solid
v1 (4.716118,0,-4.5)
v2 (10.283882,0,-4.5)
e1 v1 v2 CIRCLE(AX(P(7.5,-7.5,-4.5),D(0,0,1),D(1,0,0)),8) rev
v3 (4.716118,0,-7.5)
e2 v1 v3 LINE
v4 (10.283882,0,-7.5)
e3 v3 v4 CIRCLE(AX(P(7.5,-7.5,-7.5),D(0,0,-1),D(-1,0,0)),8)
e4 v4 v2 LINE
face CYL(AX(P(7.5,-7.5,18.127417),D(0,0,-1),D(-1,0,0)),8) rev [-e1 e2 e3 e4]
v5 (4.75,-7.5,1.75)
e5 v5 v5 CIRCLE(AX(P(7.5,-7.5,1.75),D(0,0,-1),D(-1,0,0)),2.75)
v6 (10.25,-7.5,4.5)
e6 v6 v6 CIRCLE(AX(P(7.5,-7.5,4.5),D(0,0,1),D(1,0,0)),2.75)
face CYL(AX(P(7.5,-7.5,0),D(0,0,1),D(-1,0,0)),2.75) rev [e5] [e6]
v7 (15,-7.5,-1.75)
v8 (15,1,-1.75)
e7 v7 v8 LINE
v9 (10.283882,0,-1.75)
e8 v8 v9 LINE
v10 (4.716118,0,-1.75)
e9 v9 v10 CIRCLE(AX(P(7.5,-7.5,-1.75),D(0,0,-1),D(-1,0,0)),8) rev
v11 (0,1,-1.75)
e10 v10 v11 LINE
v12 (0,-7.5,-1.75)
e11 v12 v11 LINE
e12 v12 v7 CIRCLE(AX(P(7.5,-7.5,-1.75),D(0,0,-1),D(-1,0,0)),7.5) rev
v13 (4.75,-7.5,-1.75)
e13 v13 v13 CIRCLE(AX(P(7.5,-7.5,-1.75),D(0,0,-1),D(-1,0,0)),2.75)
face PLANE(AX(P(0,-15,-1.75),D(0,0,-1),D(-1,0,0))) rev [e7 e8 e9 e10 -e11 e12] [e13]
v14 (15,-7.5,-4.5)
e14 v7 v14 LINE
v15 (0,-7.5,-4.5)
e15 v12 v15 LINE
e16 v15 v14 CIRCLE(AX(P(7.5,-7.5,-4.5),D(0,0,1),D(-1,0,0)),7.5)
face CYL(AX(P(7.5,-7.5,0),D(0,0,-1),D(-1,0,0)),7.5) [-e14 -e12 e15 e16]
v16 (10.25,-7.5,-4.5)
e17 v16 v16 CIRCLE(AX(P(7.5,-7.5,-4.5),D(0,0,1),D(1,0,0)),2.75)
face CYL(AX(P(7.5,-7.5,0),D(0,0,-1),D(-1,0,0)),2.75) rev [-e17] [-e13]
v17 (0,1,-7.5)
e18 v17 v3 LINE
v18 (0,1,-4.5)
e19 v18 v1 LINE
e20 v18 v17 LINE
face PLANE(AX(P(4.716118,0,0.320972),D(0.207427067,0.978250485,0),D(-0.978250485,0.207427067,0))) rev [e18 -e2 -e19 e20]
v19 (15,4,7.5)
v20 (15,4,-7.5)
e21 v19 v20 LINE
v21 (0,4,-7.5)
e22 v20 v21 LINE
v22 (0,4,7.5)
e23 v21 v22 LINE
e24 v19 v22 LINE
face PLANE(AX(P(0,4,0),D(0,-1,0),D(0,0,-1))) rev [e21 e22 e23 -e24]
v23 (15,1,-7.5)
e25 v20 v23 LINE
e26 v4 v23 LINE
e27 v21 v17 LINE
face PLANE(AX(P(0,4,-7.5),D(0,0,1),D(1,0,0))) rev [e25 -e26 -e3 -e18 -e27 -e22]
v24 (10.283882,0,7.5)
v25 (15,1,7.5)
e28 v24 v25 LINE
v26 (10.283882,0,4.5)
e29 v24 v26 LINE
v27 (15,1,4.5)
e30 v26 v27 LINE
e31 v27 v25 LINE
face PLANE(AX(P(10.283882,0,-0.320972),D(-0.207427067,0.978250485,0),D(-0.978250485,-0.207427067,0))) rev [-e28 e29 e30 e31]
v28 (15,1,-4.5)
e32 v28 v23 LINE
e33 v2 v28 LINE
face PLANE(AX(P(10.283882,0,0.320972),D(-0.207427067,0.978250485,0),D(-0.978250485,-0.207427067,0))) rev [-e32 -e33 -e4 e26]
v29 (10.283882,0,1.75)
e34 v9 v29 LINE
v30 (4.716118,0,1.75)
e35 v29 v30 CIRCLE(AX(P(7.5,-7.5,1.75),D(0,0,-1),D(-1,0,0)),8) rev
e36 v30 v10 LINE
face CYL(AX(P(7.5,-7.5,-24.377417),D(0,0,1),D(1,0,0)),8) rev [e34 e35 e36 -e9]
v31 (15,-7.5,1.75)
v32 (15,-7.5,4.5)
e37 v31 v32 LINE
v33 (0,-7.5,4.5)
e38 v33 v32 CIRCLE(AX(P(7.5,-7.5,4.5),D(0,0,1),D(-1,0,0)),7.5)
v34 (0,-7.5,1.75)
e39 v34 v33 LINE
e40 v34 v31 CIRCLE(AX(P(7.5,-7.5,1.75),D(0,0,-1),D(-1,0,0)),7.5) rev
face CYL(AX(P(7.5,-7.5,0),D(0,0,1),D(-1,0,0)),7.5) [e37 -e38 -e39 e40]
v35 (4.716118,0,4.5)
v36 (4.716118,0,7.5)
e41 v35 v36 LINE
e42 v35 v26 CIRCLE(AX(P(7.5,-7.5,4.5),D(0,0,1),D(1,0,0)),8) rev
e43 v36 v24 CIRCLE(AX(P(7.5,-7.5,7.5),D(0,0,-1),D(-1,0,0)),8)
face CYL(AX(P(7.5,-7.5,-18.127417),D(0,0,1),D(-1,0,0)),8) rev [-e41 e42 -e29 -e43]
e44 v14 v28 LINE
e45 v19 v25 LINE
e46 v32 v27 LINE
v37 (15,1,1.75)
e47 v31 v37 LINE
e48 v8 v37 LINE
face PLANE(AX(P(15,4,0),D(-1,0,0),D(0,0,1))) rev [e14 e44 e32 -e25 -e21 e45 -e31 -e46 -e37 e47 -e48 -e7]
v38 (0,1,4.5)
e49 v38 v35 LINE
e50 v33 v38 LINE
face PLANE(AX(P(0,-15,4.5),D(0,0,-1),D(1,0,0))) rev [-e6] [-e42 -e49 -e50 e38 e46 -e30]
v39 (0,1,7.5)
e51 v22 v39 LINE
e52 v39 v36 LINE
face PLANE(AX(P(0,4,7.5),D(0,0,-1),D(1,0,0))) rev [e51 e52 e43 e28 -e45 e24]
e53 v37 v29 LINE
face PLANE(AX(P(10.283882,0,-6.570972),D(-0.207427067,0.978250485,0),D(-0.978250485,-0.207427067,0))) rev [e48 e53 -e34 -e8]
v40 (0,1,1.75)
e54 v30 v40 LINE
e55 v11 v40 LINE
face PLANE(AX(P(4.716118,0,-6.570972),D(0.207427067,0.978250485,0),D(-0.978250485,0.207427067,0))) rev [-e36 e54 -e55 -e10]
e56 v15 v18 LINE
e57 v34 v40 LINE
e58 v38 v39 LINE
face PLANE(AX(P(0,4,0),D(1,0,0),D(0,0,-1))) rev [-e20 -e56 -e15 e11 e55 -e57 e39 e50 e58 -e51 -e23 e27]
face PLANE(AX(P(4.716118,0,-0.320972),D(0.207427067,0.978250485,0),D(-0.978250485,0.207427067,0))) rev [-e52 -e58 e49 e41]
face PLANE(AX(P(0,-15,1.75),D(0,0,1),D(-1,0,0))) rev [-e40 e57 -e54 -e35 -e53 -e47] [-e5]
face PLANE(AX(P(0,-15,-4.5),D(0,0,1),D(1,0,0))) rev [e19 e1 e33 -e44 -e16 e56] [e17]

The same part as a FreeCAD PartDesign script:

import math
import FreeCAD as App
import Part
import Sketcher


def add_polygon(sketch, points):
    """Adds a closed chain of lines whose ends are joined by coincident constraints."""
    first, n = sketch.GeometryCount, len(points)
    for a, b in zip(points, points[1:] + points[:1]):
        sketch.addGeometry(Part.LineSegment(App.Vector(*a, 0), App.Vector(*b, 0)), False)
    for i in range(n):
        sketch.addConstraint(Sketcher.Constraint("Coincident", first + i, 2, first + (i + 1) % n, 1))

doc = App.newDocument("Part")
body = doc.addObject("PartDesign::Body", "Body")

# Sketch on XZ plane
sketch1 = body.newObject("Sketcher::SketchObject", "Sketch")
sketch1.AttachmentSupport = (doc.getObject("XZ_Plane"), [""])
sketch1.MapMode = "FlatFace"
add_polygon(sketch1, [(0, -8), (0, 0), (15, 0), (15, -8)])  # lines 0-3
sketch1.addConstraint([
    Sketcher.Constraint("Vertical", 0),
    Sketcher.Constraint("Horizontal", 1),
    Sketcher.Constraint("Vertical", 2),
    Sketcher.Constraint("Horizontal", 3),
    Sketcher.Constraint("Coincident", 0, 2, -1, 1),
    Sketcher.Constraint("DistanceX", 1, 1, 1, 2, 15.0),
    Sketcher.Constraint("DistanceY", 0, 1, 0, 2, 7.5),
])
pad1 = body.newObject("PartDesign::Pad", "Pad")
pad1.Profile = sketch1
pad1.Length = 4
pad1.Reversed = True

# Sketch on XZ plane
sketch2 = body.newObject("Sketcher::SketchObject", "Sketch001")
sketch2.AttachmentSupport = (doc.getObject("XZ_Plane"), [""])
sketch2.MapMode = "FlatFace"
add_polygon(sketch2, [(0, -1.8), (0, -4.5), (15, -4.5), (15, -1.8)])  # lines 0-3
sketch2.addConstraint([
    Sketcher.Constraint("Vertical", 0),
    Sketcher.Constraint("Horizontal", 1),
    Sketcher.Constraint("Vertical", 2),
    Sketcher.Constraint("Horizontal", 3),
    Sketcher.Constraint("PointOnObject", 0, 2, -2),
    Sketcher.Constraint("DistanceX", 1, 1, 1, 2, 15.0),
    Sketcher.Constraint("DistanceY", 0, 2, 0, 1, 2.75),
    Sketcher.Constraint("DistanceY", 0, 2, -1, 1, 4.5),
])
pad2 = body.newObject("PartDesign::Pad", "Pad001")
pad2.Profile = sketch2
pad2.Length = 15

# Sketch on XY plane
sketch3 = body.newObject("Sketcher::SketchObject", "Sketch002")
sketch3.AttachmentSupport = (doc.getObject("XY_Plane"), [""])
sketch3.MapMode = "FlatFace"
sketch3.AttachmentOffset = App.Placement(App.Vector(0, 0, -4.5), App.Rotation())
sketch3.addGeometry([
    Part.LineSegment(App.Vector(15, -8, 0), App.Vector(15, -17, 0)),
    Part.LineSegment(App.Vector(15, -17, 0), App.Vector(0, -17, 0)),
    Part.LineSegment(App.Vector(0, -17, 0), App.Vector(0, -8, 0)),
    Part.ArcOfCircle(Part.Circle(App.Vector(8, -8, 0), App.Vector(0, 0, 1), 8), math.radians(180), math.radians(360)),
], False)
sketch3.addConstraint([
    Sketcher.Constraint("Coincident", 0, 2, 1, 1),
    Sketcher.Constraint("Coincident", 1, 2, 2, 1),
    Sketcher.Constraint("Tangent", 2, 2, 3, 1),
    Sketcher.Constraint("Tangent", 3, 2, 0, 1),
    Sketcher.Constraint("Vertical", 0),
    Sketcher.Constraint("Horizontal", 1),
    Sketcher.Constraint("Vertical", 2),
    Sketcher.Constraint("PointOnObject", 1, 2, -2),
    Sketcher.Constraint("Radius", 3, 7.5),
    Sketcher.Constraint("DistanceY", 3, 3, -1, 1, 7.5),
    Sketcher.Constraint("DistanceY", 0, 2, 0, 1, 9.841995),
])
pocket1 = body.newObject("PartDesign::Pocket", "Pocket")
pocket1.Profile = sketch3
pocket1.Type = "ThroughAll"
pocket1.Reversed = True

# Sketch on XY plane
sketch4 = body.newObject("Sketcher::SketchObject", "Sketch003")
sketch4.AttachmentSupport = (doc.getObject("XY_Plane"), [""])
sketch4.MapMode = "FlatFace"
sketch4.AttachmentOffset = App.Placement(App.Vector(0, 0, -7.5), App.Rotation())
sketch4.addGeometry(Part.Circle(App.Vector(7.5, -7.5, 0), App.Vector(0, 0, 1), 2.8), False)
sketch4.addConstraint([
    Sketcher.Constraint("Diameter", 0, 5.5),
    Sketcher.Constraint("DistanceX", -1, 1, 0, 3, 7.5),
    Sketcher.Constraint("DistanceY", 0, 3, -1, 1, 7.5),
])
pocket2 = body.newObject("PartDesign::Pocket", "Pocket001")
pocket2.Profile = sketch4
pocket2.Type = "ThroughAll"
pocket2.Reversed = True

# Sketch on XY plane
sketch5 = body.newObject("Sketcher::SketchObject", "Sketch004")
sketch5.AttachmentSupport = (doc.getObject("XY_Plane"), [""])
sketch5.MapMode = "FlatFace"
sketch5.AttachmentOffset = App.Placement(App.Vector(0, 0, -7.5), App.Rotation())
sketch5.addGeometry(Part.Circle(App.Vector(8, -8, 0), App.Vector(0, 0, 1), 8), False)
sketch5.addConstraint([
    Sketcher.Constraint("Diameter", 0, 16.0),
    Sketcher.Constraint("DistanceX", -1, 1, 0, 3, 7.5),
    Sketcher.Constraint("DistanceY", 0, 3, -1, 1, 7.5),
])
pocket3 = body.newObject("PartDesign::Pocket", "Pocket002")
pocket3.Profile = sketch5
pocket3.Length = 3
pocket3.Reversed = True

# Sketch on XY plane
sketch6 = body.newObject("Sketcher::SketchObject", "Sketch005")
sketch6.AttachmentSupport = (doc.getObject("XY_Plane"), [""])
sketch6.MapMode = "FlatFace"
sketch6.AttachmentOffset = App.Placement(App.Vector(0, 0, -1.75), App.Rotation())
sketch6.addGeometry(Part.Circle(App.Vector(8, -8, 0), App.Vector(0, 0, 1), 8), False)
sketch6.addConstraint([
    Sketcher.Constraint("Diameter", 0, 16.0),
    Sketcher.Constraint("DistanceX", -1, 1, 0, 3, 7.5),
    Sketcher.Constraint("DistanceY", 0, 3, -1, 1, 7.5),
])
pocket4 = body.newObject("PartDesign::Pocket", "Pocket003")
pocket4.Profile = sketch6
pocket4.Length = 1.75
pocket4.Reversed = True

# Sketch on XY plane
sketch7 = body.newObject("Sketcher::SketchObject", "Sketch006")
sketch7.AttachmentSupport = (doc.getObject("XY_Plane"), [""])
sketch7.MapMode = "FlatFace"
sketch7.AttachmentOffset = App.Placement(App.Vector(0, 0, -7.5), App.Rotation())
add_polygon(sketch7, [(10.3, 0), (15, 1), (15, 0)])  # lines 0-2
add_polygon(sketch7, [(0, 1), (4.7, 0), (0, 0)])  # lines 3-5
sketch7.addConstraint([
    Sketcher.Constraint("Vertical", 1),
    Sketcher.Constraint("Horizontal", 2),
    Sketcher.Constraint("Horizontal", 4),
    Sketcher.Constraint("Vertical", 5),
    Sketcher.Constraint("Coincident", 4, 2, -1, 1),
    Sketcher.Constraint("PointOnObject", 1, 2, -1),
    Sketcher.Constraint("Horizontal", 0, 2, 5, 2),
    Sketcher.Constraint("Equal", 2, 4),
    Sketcher.Constraint("DistanceY", 1, 2, 1, 1, 1.0),
    Sketcher.Constraint("DistanceX", -1, 1, 0, 2, 15.0),
    Sketcher.Constraint("Distance", 0, 4.820972),
])
pocket5 = body.newObject("PartDesign::Pocket", "Pocket004")
pocket5.Profile = sketch7
pocket5.Length = 3
pocket5.Reversed = True

# Sketch on XY plane
sketch8 = body.newObject("Sketcher::SketchObject", "Sketch007")
sketch8.AttachmentSupport = (doc.getObject("XY_Plane"), [""])
sketch8.MapMode = "FlatFace"
add_polygon(sketch8, [(4.7, 0), (0, 1), (0, 0)])  # lines 0-2
add_polygon(sketch8, [(15, 1), (10.3, 0), (15, 0)])  # lines 3-5
sketch8.addConstraint([
    Sketcher.Constraint("Vertical", 1),
    Sketcher.Constraint("Horizontal", 2),
    Sketcher.Constraint("Horizontal", 4),
    Sketcher.Constraint("Vertical", 5),
    Sketcher.Constraint("Coincident", 1, 2, -1, 1),
    Sketcher.Constraint("PointOnObject", 3, 2, -1),
    Sketcher.Constraint("Horizontal", 0, 2, 5, 2),
    Sketcher.Constraint("Equal", 2, 4),
    Sketcher.Constraint("DistanceY", 1, 2, 1, 1, 1.0),
    Sketcher.Constraint("DistanceX", -1, 1, 4, 2, 15.0),
    Sketcher.Constraint("Distance", 0, 4.820972),
])
pocket6 = body.newObject("PartDesign::Pocket", "Pocket005")
pocket6.Profile = sketch8
pocket6.Length = 1.75
body2 = doc.addObject("PartDesign::Body", "Body001")
doc.recompute()

body2.BaseFeature = body
doc.recompute()

mirroring = doc.addObject("Part::Mirroring", "Mirroring")
mirroring.Source = body
mirroring.Base = App.Vector(0, 4, 0)
mirroring.Normal = App.Vector(0, 0, -1)
body3 = doc.addObject("PartDesign::Body", "Body002")
body3.BaseFeature = mirroring
boolean = body2.newObject("PartDesign::Boolean", "Boolean")
boolean.Type = "Fuse"
boolean.addObjects([body3])
doc.recompute()
mirroring.Visibility = False

doc.recompute()
